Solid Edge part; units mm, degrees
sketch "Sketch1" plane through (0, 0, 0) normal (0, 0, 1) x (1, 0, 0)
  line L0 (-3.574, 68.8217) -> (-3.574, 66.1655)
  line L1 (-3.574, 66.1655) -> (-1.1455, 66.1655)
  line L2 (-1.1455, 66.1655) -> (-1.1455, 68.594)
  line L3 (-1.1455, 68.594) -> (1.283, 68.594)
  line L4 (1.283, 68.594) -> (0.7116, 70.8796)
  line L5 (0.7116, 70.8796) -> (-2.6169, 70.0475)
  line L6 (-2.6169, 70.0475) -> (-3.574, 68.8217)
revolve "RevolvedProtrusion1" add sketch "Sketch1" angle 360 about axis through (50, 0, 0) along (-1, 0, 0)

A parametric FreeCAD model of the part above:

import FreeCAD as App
import Part
import Sketcher


def add_polygon(sketch, points):
    """Adds a closed chain of lines whose ends are joined by coincident constraints."""
    first, n = sketch.GeometryCount, len(points)
    for a, b in zip(points, points[1:] + points[:1]):
        sketch.addGeometry(Part.LineSegment(App.Vector(*a, 0), App.Vector(*b, 0)), False)
    for i in range(n):
        sketch.addConstraint(Sketcher.Constraint("Coincident", first + i, 2, first + (i + 1) % n, 1))

doc = App.newDocument("Part")
body = doc.addObject("PartDesign::Body", "Body")

# Sketch on XY plane
sketch1 = body.newObject("Sketcher::SketchObject", "Sketch")
sketch1.AttachmentSupport = (doc.getObject("XY_Plane"), [""])
sketch1.MapMode = "FlatFace"
add_polygon(sketch1, [(-2.6, 70), (-3.6, 68.8), (-3.6, 66.2), (-1.1, 66.2), (-1.1, 68.6), (1.3, 68.6), (0.7, 70.9)])  # lines 0-6
sketch1.addConstraint([
    Sketcher.Constraint("Vertical", 1),
    Sketcher.Constraint("Horizontal", 2),
    Sketcher.Constraint("Vertical", 3),
    Sketcher.Constraint("Horizontal", 4),
    Sketcher.Constraint("Perpendicular", 5, 6),
    Sketcher.Constraint("Equal", 2, 4),
    Sketcher.Constraint("Equal", 4, 3),
    Sketcher.Constraint("Distance", 5, 2.356),
    Sketcher.Constraint("Distance", 6, 3.431),
    Sketcher.Constraint("DistanceX", 2, 1, 2, 2, 2.4285),
    Sketcher.Constraint("DistanceY", 1, 2, 1, 1, 2.6562),
    Sketcher.Constraint("DistanceX", 0, 2, -1, 1, 3.574),
    Sketcher.Constraint("DistanceY", -1, 1, 3, 2, 68.594),
    Sketcher.Constraint("DistanceX", 6, 2, -1, 1, 2.617),
])
revolution = body.newObject("PartDesign::Revolution", "Revolution")
revolution.Profile = sketch1
revolution.ReferenceAxis = (sketch1, ["H_Axis"])
revolution.Angle = 360

doc.recompute()
